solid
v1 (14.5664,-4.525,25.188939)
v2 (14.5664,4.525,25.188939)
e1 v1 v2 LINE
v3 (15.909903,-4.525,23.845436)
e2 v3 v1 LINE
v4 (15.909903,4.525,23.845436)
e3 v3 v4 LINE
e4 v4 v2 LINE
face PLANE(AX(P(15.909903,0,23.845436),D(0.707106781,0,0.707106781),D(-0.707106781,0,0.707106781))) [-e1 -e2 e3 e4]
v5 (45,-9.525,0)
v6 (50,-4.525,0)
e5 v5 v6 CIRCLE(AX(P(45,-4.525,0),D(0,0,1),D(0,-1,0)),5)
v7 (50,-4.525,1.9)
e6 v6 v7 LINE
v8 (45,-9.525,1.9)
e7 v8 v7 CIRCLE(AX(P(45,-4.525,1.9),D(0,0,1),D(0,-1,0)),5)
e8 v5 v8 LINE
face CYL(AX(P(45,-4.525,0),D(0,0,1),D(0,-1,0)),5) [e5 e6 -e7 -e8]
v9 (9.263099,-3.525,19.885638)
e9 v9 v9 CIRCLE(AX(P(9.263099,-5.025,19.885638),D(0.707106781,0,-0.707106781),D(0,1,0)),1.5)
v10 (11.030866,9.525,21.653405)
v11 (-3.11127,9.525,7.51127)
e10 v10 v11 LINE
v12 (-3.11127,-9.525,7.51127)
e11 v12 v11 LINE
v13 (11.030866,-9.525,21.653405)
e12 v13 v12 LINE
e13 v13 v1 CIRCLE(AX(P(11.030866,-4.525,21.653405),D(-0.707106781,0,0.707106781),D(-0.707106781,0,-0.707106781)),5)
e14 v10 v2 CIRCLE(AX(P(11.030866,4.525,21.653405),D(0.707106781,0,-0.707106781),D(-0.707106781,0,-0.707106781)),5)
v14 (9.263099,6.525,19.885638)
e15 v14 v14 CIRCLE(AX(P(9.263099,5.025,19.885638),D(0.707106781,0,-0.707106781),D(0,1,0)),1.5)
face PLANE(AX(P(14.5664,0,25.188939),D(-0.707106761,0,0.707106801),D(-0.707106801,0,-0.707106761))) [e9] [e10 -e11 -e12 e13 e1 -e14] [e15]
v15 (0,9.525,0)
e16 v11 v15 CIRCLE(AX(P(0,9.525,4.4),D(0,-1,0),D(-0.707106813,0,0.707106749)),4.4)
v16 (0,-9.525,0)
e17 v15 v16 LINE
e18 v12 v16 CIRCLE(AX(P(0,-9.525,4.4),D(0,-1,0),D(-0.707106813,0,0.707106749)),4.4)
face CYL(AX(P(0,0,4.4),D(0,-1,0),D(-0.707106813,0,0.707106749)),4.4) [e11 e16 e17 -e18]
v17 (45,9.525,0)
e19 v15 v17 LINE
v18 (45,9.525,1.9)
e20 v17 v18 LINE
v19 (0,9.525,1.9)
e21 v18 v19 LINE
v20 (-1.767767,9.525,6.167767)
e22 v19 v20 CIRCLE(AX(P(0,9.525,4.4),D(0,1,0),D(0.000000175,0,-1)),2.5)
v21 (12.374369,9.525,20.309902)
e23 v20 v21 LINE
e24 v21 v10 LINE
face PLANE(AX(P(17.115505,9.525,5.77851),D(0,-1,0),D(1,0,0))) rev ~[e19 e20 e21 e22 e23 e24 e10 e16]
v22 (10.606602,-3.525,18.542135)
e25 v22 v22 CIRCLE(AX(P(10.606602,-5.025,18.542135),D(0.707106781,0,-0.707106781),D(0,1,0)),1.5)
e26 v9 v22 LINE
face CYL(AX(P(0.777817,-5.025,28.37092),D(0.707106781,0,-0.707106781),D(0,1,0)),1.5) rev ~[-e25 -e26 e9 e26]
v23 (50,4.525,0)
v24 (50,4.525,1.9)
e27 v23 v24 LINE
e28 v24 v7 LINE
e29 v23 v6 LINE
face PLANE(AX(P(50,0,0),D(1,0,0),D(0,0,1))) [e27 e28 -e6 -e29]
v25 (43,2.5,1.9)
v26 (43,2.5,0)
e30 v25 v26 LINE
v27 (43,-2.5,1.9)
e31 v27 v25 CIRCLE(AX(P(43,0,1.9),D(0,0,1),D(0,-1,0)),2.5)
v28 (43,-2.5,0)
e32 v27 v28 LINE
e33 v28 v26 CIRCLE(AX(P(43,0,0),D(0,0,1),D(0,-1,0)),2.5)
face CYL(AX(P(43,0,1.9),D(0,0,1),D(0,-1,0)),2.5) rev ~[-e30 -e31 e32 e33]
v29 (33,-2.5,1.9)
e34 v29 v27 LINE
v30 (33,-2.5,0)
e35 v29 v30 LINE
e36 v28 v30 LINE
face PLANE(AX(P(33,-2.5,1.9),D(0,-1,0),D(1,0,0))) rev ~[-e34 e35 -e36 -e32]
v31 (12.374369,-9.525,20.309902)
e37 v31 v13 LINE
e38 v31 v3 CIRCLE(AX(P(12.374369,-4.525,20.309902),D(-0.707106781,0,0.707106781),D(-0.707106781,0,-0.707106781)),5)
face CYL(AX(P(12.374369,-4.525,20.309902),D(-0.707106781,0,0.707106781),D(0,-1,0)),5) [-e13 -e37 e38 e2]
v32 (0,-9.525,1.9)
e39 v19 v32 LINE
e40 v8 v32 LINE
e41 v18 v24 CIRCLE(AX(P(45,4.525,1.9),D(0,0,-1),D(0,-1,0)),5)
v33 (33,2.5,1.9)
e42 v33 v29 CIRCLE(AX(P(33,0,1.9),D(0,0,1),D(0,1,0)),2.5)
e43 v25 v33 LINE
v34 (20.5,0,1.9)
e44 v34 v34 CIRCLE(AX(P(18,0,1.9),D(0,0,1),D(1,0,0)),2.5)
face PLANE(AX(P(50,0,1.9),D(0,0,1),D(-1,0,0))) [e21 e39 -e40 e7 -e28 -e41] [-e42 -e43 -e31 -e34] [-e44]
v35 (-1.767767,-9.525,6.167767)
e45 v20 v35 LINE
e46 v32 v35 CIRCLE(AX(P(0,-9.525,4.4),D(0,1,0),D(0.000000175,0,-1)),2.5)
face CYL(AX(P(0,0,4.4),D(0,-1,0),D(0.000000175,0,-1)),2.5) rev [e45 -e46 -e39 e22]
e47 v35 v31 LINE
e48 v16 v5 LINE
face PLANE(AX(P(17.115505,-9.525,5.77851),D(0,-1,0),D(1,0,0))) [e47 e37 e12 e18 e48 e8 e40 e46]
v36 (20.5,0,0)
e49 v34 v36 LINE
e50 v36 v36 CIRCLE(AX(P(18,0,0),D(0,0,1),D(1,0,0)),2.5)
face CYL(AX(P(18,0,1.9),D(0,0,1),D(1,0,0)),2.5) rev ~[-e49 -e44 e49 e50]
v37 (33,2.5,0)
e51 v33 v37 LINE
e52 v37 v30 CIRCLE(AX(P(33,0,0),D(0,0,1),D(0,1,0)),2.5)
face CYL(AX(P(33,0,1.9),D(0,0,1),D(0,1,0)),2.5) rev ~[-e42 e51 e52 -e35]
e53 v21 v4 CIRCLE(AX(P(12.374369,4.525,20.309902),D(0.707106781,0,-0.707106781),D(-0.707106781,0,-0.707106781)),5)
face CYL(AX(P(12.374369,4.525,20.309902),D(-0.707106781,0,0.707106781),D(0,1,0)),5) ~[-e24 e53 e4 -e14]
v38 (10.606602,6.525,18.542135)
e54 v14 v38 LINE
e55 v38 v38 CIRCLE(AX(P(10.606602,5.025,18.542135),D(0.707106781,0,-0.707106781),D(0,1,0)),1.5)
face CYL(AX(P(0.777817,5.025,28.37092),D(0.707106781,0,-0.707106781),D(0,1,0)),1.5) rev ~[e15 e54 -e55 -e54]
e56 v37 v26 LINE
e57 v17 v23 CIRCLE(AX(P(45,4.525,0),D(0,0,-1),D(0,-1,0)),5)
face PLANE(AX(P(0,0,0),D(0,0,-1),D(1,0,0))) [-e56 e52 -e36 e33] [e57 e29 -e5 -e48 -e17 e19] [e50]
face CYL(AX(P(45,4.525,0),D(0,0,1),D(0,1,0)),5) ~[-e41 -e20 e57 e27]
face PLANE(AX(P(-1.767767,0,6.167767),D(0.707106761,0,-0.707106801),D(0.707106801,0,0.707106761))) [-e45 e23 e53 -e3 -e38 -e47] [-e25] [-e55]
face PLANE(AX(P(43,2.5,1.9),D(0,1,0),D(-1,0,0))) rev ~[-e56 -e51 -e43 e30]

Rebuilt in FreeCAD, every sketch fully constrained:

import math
import FreeCAD as App
import Part
import Sketcher
from FreeCAD import Vector
Q = App.Units.Quantity


def edges_at(feature, points):
    """Names of the edges that pass closest to the given points."""
    edges = feature.Shape.Edges
    near = lambda p: min(range(len(edges)), key=lambda i: edges[i].distToShape(Part.Vertex(*p))[0])
    return sorted({f"Edge{near(p) + 1}" for p in points})

doc = App.newDocument("Part")
params = doc.addObject("Spreadsheet::Sheet", "Params")
for row, (alias, value) in enumerate([
    ("sketch1_radius", "4.4 mm"),
    ("sketch1_radius2", "2.5 mm"),
    ("sketch1_width", "50 mm"),
    ("sketch1_length", "25 mm"),
    ("pad1_length", "19.05 mm"),
    ("sketch2_diameter", "3 mm"),
    ("hole_diameter", "3 mm"),
    ("hole_depth", "12 mm"),
    ("sketch3_diameter", "5 mm"),
    ("sketch3_width", "10 mm"),
    ("pocket1_length", "25 mm"),
    ("fillet_radius", "5 mm"),
], start=1):
    params.set(f"A{row}", alias)
    params.set(f"B{row}", "=" + value)
    params.setAlias(f"B{row}", alias)

body = doc.addObject("PartDesign::Body", "Body")

# Sketch on XZ plane
sketch1 = body.newObject("Sketcher::SketchObject", "Sketch")
sketch1.AttachmentSupport = (doc.getObject("XZ_Plane"), [""])
sketch1.MapMode = "FlatFace"
sketch1.addGeometry([
    Part.ArcOfCircle(Part.Circle(Vector(0, 4.4, 0), Vector(0, 0, 1), 4.4), math.radians(135.000003), math.radians(269.999999)),  # 0
    Part.LineSegment(Vector(0, 0, 0), Vector(50, 0, 0)),  # 1
    Part.LineSegment(Vector(50, 0, 0), Vector(50, 1.9, 0)),  # 2
    Part.LineSegment(Vector(50, 1.9, 0), Vector(0, 1.9, 0)),  # 3
    Part.ArcOfCircle(Part.Circle(Vector(0, 4.4, 0), Vector(0, 0, 1), 2.5), math.radians(134.999991), math.radians(270.00001)),  # 4
    Part.LineSegment(Vector(-1.767767, 6.167767, 0), Vector(15.909903, 23.845436, 0)),  # 5
    Part.LineSegment(Vector(15.909903, 23.845436, 0), Vector(14.5664, 25.188939, 0)),  # 6
    Part.LineSegment(Vector(14.5664, 25.188939, 0), Vector(-3.11127, 7.51127, 0)),  # 7
], False)
sketch1.addConstraint([
    Sketcher.Constraint("Tangent", 0, 2, 1, 1),
    Sketcher.Constraint("Coincident", 1, 2, 2, 1),
    Sketcher.Constraint("Coincident", 2, 2, 3, 1),
    Sketcher.Constraint("Tangent", 3, 2, 4, 2),
    Sketcher.Constraint("Tangent", 4, 1, 5, 1),
    Sketcher.Constraint("Coincident", 5, 2, 6, 1),
    Sketcher.Constraint("Coincident", 6, 2, 7, 1),
    Sketcher.Constraint("Tangent", 7, 2, 0, 1),
    Sketcher.Constraint("Horizontal", 1),
    Sketcher.Constraint("Vertical", 2),
    Sketcher.Constraint("Horizontal", 3),
    Sketcher.Constraint("Coincident", 0, 2, -1, 1),
    Sketcher.Constraint("Coincident", 4, 3, 0, 3),
    Sketcher.Constraint("Perpendicular", 5, 6),
    Sketcher.Constraint("Perpendicular", 6, 7),
    Sketcher.Constraint("Radius", 0, 4.4),
    Sketcher.Constraint("Radius", 4, 2.5),
    Sketcher.Constraint("DistanceX", 1, 1, 1, 2, 50.0),
    Sketcher.Constraint("Angle", 5, Q("44.999998 deg")),
    Sketcher.Constraint("Distance", 5, 25.0),
])
sketch1.setExpression("Constraints[15]", "Params.sketch1_radius")
sketch1.setExpression("Constraints[16]", "Params.sketch1_radius2")
sketch1.setExpression("Constraints[17]", "Params.sketch1_width")
sketch1.setExpression("Constraints[19]", "Params.sketch1_length")
pad1 = body.newObject("PartDesign::Pad", "Pad")
pad1.Profile = sketch1
pad1.setExpression("Length", "Params.pad1_length")
pad1.Midplane = True

# Sketch on an angled plane
sketch2 = body.newObject("Sketcher::SketchObject", "Sketch001")
sketch2.Placement = App.Placement(Vector(-5.31127, 0, 5.31127), App.Rotation(Vector(0, -1, 0), Vector(0.707106781, 0, 0.707106781), Vector(-0.707106781, 0, 0.707106781), "ZXY"))
sketch2.addGeometry([
    Part.Circle(Vector(-5.025, 20.61127, 0), Vector(0, 0, 1), 1.5),
    Part.Circle(Vector(5.025, 20.61127, 0), Vector(0, 0, 1), 1.5),
], False)
sketch2.addConstraint([
    Sketcher.Constraint("Equal", 0, 1),
    Sketcher.Constraint("Symmetric", 0, 3, 1, 3, -2),
    Sketcher.Constraint("Diameter", 0, 3.0),
    Sketcher.Constraint("DistanceX", 0, 3, 1, 3, 10.05),
    Sketcher.Constraint("DistanceY", -1, 1, 0, 3, 20.61127),
])
sketch2.setExpression("Constraints[2]", "Params.sketch2_diameter")
doc.recompute()
hole = body.newObject("PartDesign::Hole", "Hole")
hole.Profile = sketch2
hole.ThreadType = "None"
hole.setExpression("Diameter", "Params.hole_diameter")
hole.DepthType = "Dimension"
hole.setExpression("Depth", "Params.hole_depth")
hole.DrillPoint = "Flat"

# Sketch on XY plane
sketch3 = body.newObject("Sketcher::SketchObject", "Sketch002")
sketch3.AttachmentSupport = (doc.getObject("XY_Plane"), [""])
sketch3.MapMode = "FlatFace"
sketch3.AttachmentOffset = App.Placement(Vector(0, 0, 1.9), App.Rotation())
sketch3.addGeometry([
    Part.LineSegment(Vector(33, -2.5, 0), Vector(43, -2.5, 0)),  # 0
    Part.ArcOfCircle(Part.Circle(Vector(43, 0, 0), Vector(0, 0, 1), 2.5), math.radians(-90), math.radians(90)),  # 1
    Part.LineSegment(Vector(43, 2.5, 0), Vector(33, 2.5, 0)),  # 2
    Part.ArcOfCircle(Part.Circle(Vector(33, 0, 0), Vector(0, 0, 1), 2.5), math.radians(90), math.radians(270)),  # 3
    Part.Circle(Vector(18, 0, 0), Vector(0, 0, 1), 2.5),  # 4
], False)
sketch3.addConstraint([
    Sketcher.Constraint("Tangent", 0, 2, 1, 1),
    Sketcher.Constraint("Tangent", 1, 2, 2, 1),
    Sketcher.Constraint("Tangent", 2, 2, 3, 1),
    Sketcher.Constraint("Tangent", 3, 2, 0, 1),
    Sketcher.Constraint("Horizontal", 0),
    Sketcher.Constraint("Horizontal", 2),
    Sketcher.Constraint("Equal", 3, 4),
    Sketcher.Constraint("PointOnObject", 1, 3, -1),
    Sketcher.Constraint("PointOnObject", 4, 3, -1),
    Sketcher.Constraint("Diameter", 4, 5.0),
    Sketcher.Constraint("DistanceX", 0, 1, 0, 2, 10.0),
    Sketcher.Constraint("DistanceX", -1, 1, 1, 3, 43.0),
    Sketcher.Constraint("DistanceX", -1, 1, 4, 3, 18.0),
])
sketch3.setExpression("Constraints[9]", "Params.sketch3_diameter")
sketch3.setExpression("Constraints[10]", "Params.sketch3_width")
pocket1 = body.newObject("PartDesign::Pocket", "Pocket")
pocket1.Profile = sketch3
pocket1.setExpression("Length", "Params.pocket1_length")
doc.recompute()

fillet = body.newObject("PartDesign::Fillet", "Fillet")
fillet.Base = (pocket1, edges_at(pocket1, [
    (50, -9.525, 0.95),
    (50, 9.525, 0.95),
    (15.238, -9.525, 24.517),
    (15.238, 9.525, 24.517),
]))
fillet.setExpression("Radius", "Params.fillet_radius")

doc.recompute()
